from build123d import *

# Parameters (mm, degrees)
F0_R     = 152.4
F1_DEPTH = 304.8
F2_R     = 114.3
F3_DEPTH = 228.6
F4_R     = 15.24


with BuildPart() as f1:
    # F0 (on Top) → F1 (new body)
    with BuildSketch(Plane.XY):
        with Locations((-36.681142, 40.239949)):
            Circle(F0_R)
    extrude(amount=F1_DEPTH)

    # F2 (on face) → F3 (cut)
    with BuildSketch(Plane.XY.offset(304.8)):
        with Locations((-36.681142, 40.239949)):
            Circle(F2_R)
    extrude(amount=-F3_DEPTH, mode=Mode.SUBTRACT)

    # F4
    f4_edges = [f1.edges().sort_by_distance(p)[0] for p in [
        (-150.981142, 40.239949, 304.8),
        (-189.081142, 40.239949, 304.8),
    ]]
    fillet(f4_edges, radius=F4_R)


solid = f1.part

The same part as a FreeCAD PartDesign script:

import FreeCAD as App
import Part
import Sketcher
Q = App.Units.Quantity


def edges_at(feature, points):
    """Names of the edges that pass closest to the given points."""
    edges = feature.Shape.Edges
    near = lambda p: min(range(len(edges)), key=lambda i: edges[i].distToShape(Part.Vertex(*p))[0])
    return sorted({f"Edge{near(p) + 1}" for p in points})

doc = App.newDocument("Part")
body = doc.addObject("PartDesign::Body", "Body")

sketch1 = doc.addObject("Sketcher::SketchObject", "Sketch")
body.addObject(sketch1)
sketch1.AttachmentSupport = (doc.XY_Plane, [""])
sketch1.MapMode = "FlatFace"
sketch1.addGeometry(Part.Circle(App.Vector(-37, 40, 0), App.Vector(0, 0, 1), 152), False)
sketch1.addConstraint([
    Sketcher.Constraint("Diameter", 0, Q("12 in")),
    Sketcher.Constraint("DistanceY", -1, 1, 0, 3, 40.239949),
    Sketcher.Constraint("DistanceX", 0, 3, -1, 1, 36.681142),
])
pad1 = doc.addObject("PartDesign::Pad", "Pad")
body.addObject(pad1)
pad1.Profile = sketch1
pad1.Length = Q("12 in")

sketch2 = doc.addObject("Sketcher::SketchObject", "Sketch001")
body.addObject(sketch2)
sketch2.AttachmentSupport = (doc.XY_Plane, [""])
sketch2.MapMode = "FlatFace"
sketch2.AttachmentOffset = App.Placement(App.Vector(0, 0, 12 * 25.4), App.Rotation())
sketch2.addGeometry(Part.Circle(App.Vector(-37, 40, 0), App.Vector(0, 0, 1), 114), False)
sketch2.addConstraint([
    Sketcher.Constraint("Diameter", 0, Q("9 in")),
    Sketcher.Constraint("DistanceY", -1, 1, 0, 3, 40.239949),
    Sketcher.Constraint("DistanceX", 0, 3, -1, 1, 36.681142),
])
pocket1 = doc.addObject("PartDesign::Pocket", "Pocket")
body.addObject(pocket1)
pocket1.Profile = sketch2
pocket1.Length = Q("9 in")
doc.recompute()

fillet = doc.addObject("PartDesign::Fillet", "Fillet")
body.addObject(fillet)
fillet.Base = (pocket1, edges_at(pocket1, [(-150.981, 40.24, 304.8), (-189.081, 40.24, 304.8)]))
fillet.Radius = Q("0.6 in")

doc.recompute()
